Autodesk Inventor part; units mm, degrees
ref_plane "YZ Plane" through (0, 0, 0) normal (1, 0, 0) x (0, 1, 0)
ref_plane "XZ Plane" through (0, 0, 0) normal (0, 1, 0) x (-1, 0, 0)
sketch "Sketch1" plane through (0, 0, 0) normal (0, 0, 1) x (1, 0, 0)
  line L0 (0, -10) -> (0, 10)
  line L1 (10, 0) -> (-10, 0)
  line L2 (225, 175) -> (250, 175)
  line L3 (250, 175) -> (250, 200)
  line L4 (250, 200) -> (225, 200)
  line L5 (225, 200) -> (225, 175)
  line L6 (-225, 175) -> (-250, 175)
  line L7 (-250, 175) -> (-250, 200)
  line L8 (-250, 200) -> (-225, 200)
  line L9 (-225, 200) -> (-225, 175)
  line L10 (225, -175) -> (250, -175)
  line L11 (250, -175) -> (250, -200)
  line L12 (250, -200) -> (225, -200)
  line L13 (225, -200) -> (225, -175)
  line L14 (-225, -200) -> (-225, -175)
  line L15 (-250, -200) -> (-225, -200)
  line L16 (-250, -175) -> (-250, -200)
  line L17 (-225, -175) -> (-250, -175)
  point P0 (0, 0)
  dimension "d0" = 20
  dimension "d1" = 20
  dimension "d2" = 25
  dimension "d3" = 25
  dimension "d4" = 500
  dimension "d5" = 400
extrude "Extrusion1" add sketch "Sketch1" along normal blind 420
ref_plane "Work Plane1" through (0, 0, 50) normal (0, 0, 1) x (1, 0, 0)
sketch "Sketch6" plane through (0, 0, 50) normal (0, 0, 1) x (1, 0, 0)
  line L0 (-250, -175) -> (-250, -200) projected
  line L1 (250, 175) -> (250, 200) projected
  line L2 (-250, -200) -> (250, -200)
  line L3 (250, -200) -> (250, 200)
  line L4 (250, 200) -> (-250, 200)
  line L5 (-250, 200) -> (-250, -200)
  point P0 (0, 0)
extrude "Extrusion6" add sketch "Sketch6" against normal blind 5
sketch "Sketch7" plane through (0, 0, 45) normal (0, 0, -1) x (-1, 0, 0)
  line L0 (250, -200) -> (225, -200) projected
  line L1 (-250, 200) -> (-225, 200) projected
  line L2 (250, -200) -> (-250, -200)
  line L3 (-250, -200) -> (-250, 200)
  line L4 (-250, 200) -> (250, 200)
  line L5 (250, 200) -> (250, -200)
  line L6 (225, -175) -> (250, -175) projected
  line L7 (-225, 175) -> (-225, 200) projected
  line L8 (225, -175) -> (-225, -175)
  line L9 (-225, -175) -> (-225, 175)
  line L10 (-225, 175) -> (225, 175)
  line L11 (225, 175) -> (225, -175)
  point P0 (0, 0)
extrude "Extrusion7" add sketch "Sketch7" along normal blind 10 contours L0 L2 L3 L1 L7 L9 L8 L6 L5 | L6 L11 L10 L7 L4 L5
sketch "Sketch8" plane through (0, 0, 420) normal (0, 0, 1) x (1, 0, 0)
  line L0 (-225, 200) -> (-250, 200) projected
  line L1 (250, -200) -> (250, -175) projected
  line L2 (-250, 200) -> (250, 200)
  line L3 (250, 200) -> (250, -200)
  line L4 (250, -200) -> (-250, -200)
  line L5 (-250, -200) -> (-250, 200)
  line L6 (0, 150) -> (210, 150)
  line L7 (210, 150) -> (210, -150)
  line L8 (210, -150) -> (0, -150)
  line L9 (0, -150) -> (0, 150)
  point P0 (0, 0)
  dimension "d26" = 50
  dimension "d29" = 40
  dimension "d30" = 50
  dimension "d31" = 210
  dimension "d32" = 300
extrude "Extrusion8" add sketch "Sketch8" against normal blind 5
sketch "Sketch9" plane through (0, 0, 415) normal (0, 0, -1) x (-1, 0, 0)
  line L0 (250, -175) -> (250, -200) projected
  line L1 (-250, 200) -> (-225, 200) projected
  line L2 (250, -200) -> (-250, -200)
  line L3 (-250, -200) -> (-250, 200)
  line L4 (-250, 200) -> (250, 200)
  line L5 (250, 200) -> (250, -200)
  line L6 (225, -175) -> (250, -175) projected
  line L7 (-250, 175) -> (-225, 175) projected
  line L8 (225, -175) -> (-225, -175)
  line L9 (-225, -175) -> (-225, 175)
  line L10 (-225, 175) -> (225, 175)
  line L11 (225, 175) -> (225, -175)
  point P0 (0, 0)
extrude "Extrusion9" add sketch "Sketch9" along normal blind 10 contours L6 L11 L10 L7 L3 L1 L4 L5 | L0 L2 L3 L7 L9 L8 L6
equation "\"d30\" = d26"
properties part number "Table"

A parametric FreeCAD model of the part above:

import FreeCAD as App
import Part
import Sketcher

V = App.Vector
Q = App.Units.Quantity

doc = App.newDocument("Part")
body = doc.addObject("PartDesign::Body", "Body")
body.AllowCompound = True

# Sketch on XY plane
sketch1 = body.newObject("Sketcher::SketchObject", "Sketch")
sketch1.AttachmentSupport = (doc.getObject("XY_Plane"), [""])
sketch1.MapMode = "FlatFace"
sketch1.addGeometry(Part.LineSegment(V(225, 200, 0), V(225, 175, 0)), False)
sketch1.addGeometry(Part.LineSegment(V(225, 175, 0), V(250, 175, 0)), False)
sketch1.addGeometry(Part.LineSegment(V(250, 175, 0), V(250, 200, 0)), False)
sketch1.addGeometry(Part.LineSegment(V(250, 200, 0), V(225, 200, 0)), False)
sketch1.addGeometry(Part.LineSegment(V(-250, 175, 0), V(-225, 175, 0)), False)
sketch1.addGeometry(Part.LineSegment(V(-225, 175, 0), V(-225, 200, 0)), False)
sketch1.addGeometry(Part.LineSegment(V(-225, 200, 0), V(-250, 200, 0)), False)
sketch1.addGeometry(Part.LineSegment(V(-250, 200, 0), V(-250, 175, 0)), False)
sketch1.addGeometry(Part.LineSegment(V(250, -175, 0), V(225, -175, 0)), False)
sketch1.addGeometry(Part.LineSegment(V(225, -175, 0), V(225, -200, 0)), False)
sketch1.addGeometry(Part.LineSegment(V(225, -200, 0), V(250, -200, 0)), False)
sketch1.addGeometry(Part.LineSegment(V(250, -200, 0), V(250, -175, 0)), False)
sketch1.addGeometry(Part.LineSegment(V(-250, -200, 0), V(-225, -200, 0)), False)
sketch1.addGeometry(Part.LineSegment(V(-225, -200, 0), V(-225, -175, 0)), False)
sketch1.addGeometry(Part.LineSegment(V(-225, -175, 0), V(-250, -175, 0)), False)
sketch1.addGeometry(Part.LineSegment(V(-250, -175, 0), V(-250, -200, 0)), False)
sketch1.addConstraint(Sketcher.Constraint("Coincident", 0, 2, 1, 1))
sketch1.addConstraint(Sketcher.Constraint("Coincident", 1, 2, 2, 1))
sketch1.addConstraint(Sketcher.Constraint("Coincident", 2, 2, 3, 1))
sketch1.addConstraint(Sketcher.Constraint("Coincident", 3, 2, 0, 1))
sketch1.addConstraint(Sketcher.Constraint("Coincident", 4, 2, 5, 1))
sketch1.addConstraint(Sketcher.Constraint("Coincident", 5, 2, 6, 1))
sketch1.addConstraint(Sketcher.Constraint("Coincident", 6, 2, 7, 1))
sketch1.addConstraint(Sketcher.Constraint("Coincident", 7, 2, 4, 1))
sketch1.addConstraint(Sketcher.Constraint("Coincident", 8, 2, 9, 1))
sketch1.addConstraint(Sketcher.Constraint("Coincident", 9, 2, 10, 1))
sketch1.addConstraint(Sketcher.Constraint("Coincident", 10, 2, 11, 1))
sketch1.addConstraint(Sketcher.Constraint("Coincident", 11, 2, 8, 1))
sketch1.addConstraint(Sketcher.Constraint("Coincident", 12, 2, 13, 1))
sketch1.addConstraint(Sketcher.Constraint("Coincident", 13, 2, 14, 1))
sketch1.addConstraint(Sketcher.Constraint("Coincident", 14, 2, 15, 1))
sketch1.addConstraint(Sketcher.Constraint("Coincident", 15, 2, 12, 1))
sketch1.addConstraint(Sketcher.Constraint("Vertical", 0))
sketch1.addConstraint(Sketcher.Constraint("Horizontal", 1))
sketch1.addConstraint(Sketcher.Constraint("Vertical", 2))
sketch1.addConstraint(Sketcher.Constraint("Horizontal", 3))
sketch1.addConstraint(Sketcher.Constraint("Horizontal", 4))
sketch1.addConstraint(Sketcher.Constraint("Vertical", 5))
sketch1.addConstraint(Sketcher.Constraint("Horizontal", 6))
sketch1.addConstraint(Sketcher.Constraint("Vertical", 7))
sketch1.addConstraint(Sketcher.Constraint("Horizontal", 8))
sketch1.addConstraint(Sketcher.Constraint("Vertical", 9))
sketch1.addConstraint(Sketcher.Constraint("Horizontal", 10))
sketch1.addConstraint(Sketcher.Constraint("Vertical", 11))
sketch1.addConstraint(Sketcher.Constraint("Horizontal", 12))
sketch1.addConstraint(Sketcher.Constraint("Vertical", 13))
sketch1.addConstraint(Sketcher.Constraint("Horizontal", 14))
sketch1.addConstraint(Sketcher.Constraint("Vertical", 15))
sketch1.addConstraint(Sketcher.Constraint("Symmetric", 4, 2, 8, 2, -1, 1))
sketch1.addConstraint(Sketcher.Constraint("Symmetric", 6, 2, 10, 2, -1, 1))
sketch1.addConstraint(Sketcher.Constraint("Symmetric", 3, 2, 12, 2, -1, 1))
sketch1.addConstraint(Sketcher.Constraint("Symmetric", 1, 2, 14, 2, -1, 1))
sketch1.addConstraint(Sketcher.Constraint("Symmetric", 0, 2, 4, 2, -2))
sketch1.addConstraint(Sketcher.Constraint("Symmetric", 2, 2, 6, 2, -2))
sketch1.addConstraint(Sketcher.Constraint("Equal", 14, 0))
sketch1.addConstraint(Sketcher.Constraint("DistanceX", 1, 1, 1, 2, Q("25 mm")))
sketch1.addConstraint(Sketcher.Constraint("DistanceX", 6, 2, 2, 2, Q("500 mm")))
sketch1.addConstraint(Sketcher.Constraint("DistanceY", 9, 2, 3, 2, Q("400 mm")))
pad1 = body.newObject("PartDesign::Pad", "Pad")
pad1.Profile = sketch1
pad1.Length = 420

# Sketch on XY plane
sketch2 = body.newObject("Sketcher::SketchObject", "Sketch001")
sketch2.AttachmentSupport = (doc.getObject("XY_Plane"), [""])
sketch2.MapMode = "FlatFace"
sketch2.AttachmentOffset = App.Placement(V(0, 0, 50), App.Rotation())
sketch2.addGeometry(Part.LineSegment(V(-250, 200, 0), V(-250, -200, 0)), False)
sketch2.addGeometry(Part.LineSegment(V(-250, -200, 0), V(250, -200, 0)), False)
sketch2.addGeometry(Part.LineSegment(V(250, -200, 0), V(250, 200, 0)), False)
sketch2.addGeometry(Part.LineSegment(V(250, 200, 0), V(-250, 200, 0)), False)
sketch2.addConstraint(Sketcher.Constraint("Coincident", 0, 2, 1, 1))
sketch2.addConstraint(Sketcher.Constraint("Coincident", 1, 2, 2, 1))
sketch2.addConstraint(Sketcher.Constraint("Coincident", 2, 2, 3, 1))
sketch2.addConstraint(Sketcher.Constraint("Coincident", 3, 2, 0, 1))
sketch2.addConstraint(Sketcher.Constraint("Vertical", 0))
sketch2.addConstraint(Sketcher.Constraint("Horizontal", 1))
sketch2.addConstraint(Sketcher.Constraint("Vertical", 2))
sketch2.addConstraint(Sketcher.Constraint("Horizontal", 3))
sketch2.addConstraint(Sketcher.Constraint("Symmetric", 0, 2, 2, 2, -1, 1))
sketch2.addConstraint(Sketcher.Constraint("DistanceX", 1, 1, 1, 2, Q("500 mm")))
sketch2.addConstraint(Sketcher.Constraint("DistanceY", 0, 2, 0, 1, Q("400 mm")))
pad2 = body.newObject("PartDesign::Pad", "Pad001")
pad2.Profile = sketch2
pad2.Length = 5
pad2.Reversed = True

# Sketch on XY plane
sketch3 = body.newObject("Sketcher::SketchObject", "Sketch002")
sketch3.AttachmentSupport = (doc.getObject("XY_Plane"), [""])
sketch3.MapMode = "FlatFace"
sketch3.AttachmentOffset = App.Placement(V(0, 0, 45), App.Rotation())
sketch3.addGeometry(Part.LineSegment(V(-250, -200, 0), V(-250, 200, 0)), False)
sketch3.addGeometry(Part.LineSegment(V(-250, 200, 0), V(250, 200, 0)), False)
sketch3.addGeometry(Part.LineSegment(V(250, 200, 0), V(250, -200, 0)), False)
sketch3.addGeometry(Part.LineSegment(V(250, -200, 0), V(-250, -200, 0)), False)
sketch3.addGeometry(Part.LineSegment(V(225, -175, 0), V(225, 175, 0)), False)
sketch3.addGeometry(Part.LineSegment(V(225, 175, 0), V(-225, 175, 0)), False)
sketch3.addGeometry(Part.LineSegment(V(-225, 175, 0), V(-225, -175, 0)), False)
sketch3.addGeometry(Part.LineSegment(V(-225, -175, 0), V(225, -175, 0)), False)
sketch3.addConstraint(Sketcher.Constraint("Coincident", 0, 2, 1, 1))
sketch3.addConstraint(Sketcher.Constraint("Coincident", 1, 2, 2, 1))
sketch3.addConstraint(Sketcher.Constraint("Coincident", 2, 2, 3, 1))
sketch3.addConstraint(Sketcher.Constraint("Coincident", 3, 2, 0, 1))
sketch3.addConstraint(Sketcher.Constraint("Coincident", 4, 2, 5, 1))
sketch3.addConstraint(Sketcher.Constraint("Coincident", 5, 2, 6, 1))
sketch3.addConstraint(Sketcher.Constraint("Coincident", 6, 2, 7, 1))
sketch3.addConstraint(Sketcher.Constraint("Coincident", 7, 2, 4, 1))
sketch3.addConstraint(Sketcher.Constraint("Vertical", 0))
sketch3.addConstraint(Sketcher.Constraint("Horizontal", 1))
sketch3.addConstraint(Sketcher.Constraint("Vertical", 2))
sketch3.addConstraint(Sketcher.Constraint("Horizontal", 3))
sketch3.addConstraint(Sketcher.Constraint("Vertical", 4))
sketch3.addConstraint(Sketcher.Constraint("Horizontal", 5))
sketch3.addConstraint(Sketcher.Constraint("Vertical", 6))
sketch3.addConstraint(Sketcher.Constraint("Horizontal", 7))
sketch3.addConstraint(Sketcher.Constraint("Symmetric", 0, 2, 2, 2, -1, 1))
sketch3.addConstraint(Sketcher.Constraint("Symmetric", 4, 2, 6, 2, -1, 1))
sketch3.addConstraint(Sketcher.Constraint("DistanceX", 1, 1, 1, 2, Q("500 mm")))
sketch3.addConstraint(Sketcher.Constraint("DistanceX", 5, 2, 5, 1, Q("450 mm")))
sketch3.addConstraint(Sketcher.Constraint("DistanceY", 0, 1, 0, 2, Q("400 mm")))
sketch3.addConstraint(Sketcher.Constraint("DistanceY", 4, 1, 4, 2, Q("350 mm")))
pad3 = body.newObject("PartDesign::Pad", "Pad002")
pad3.Profile = sketch3
pad3.Length = 10
pad3.Reversed = True

# Sketch on XY plane
sketch4 = body.newObject("Sketcher::SketchObject", "Sketch003")
sketch4.AttachmentSupport = (doc.getObject("XY_Plane"), [""])
sketch4.MapMode = "FlatFace"
sketch4.AttachmentOffset = App.Placement(V(0, 0, 420), App.Rotation())
sketch4.addGeometry(Part.LineSegment(V(250, 200, 0), V(-250, 200, 0)), False)
sketch4.addGeometry(Part.LineSegment(V(-250, 200, 0), V(-250, -200, 0)), False)
sketch4.addGeometry(Part.LineSegment(V(-250, -200, 0), V(250, -200, 0)), False)
sketch4.addGeometry(Part.LineSegment(V(250, -200, 0), V(250, 200, 0)), False)
sketch4.addGeometry(Part.LineSegment(V(0, -150, 0), V(0, 150, 0)), False)
sketch4.addGeometry(Part.LineSegment(V(0, 150, 0), V(210, 150, 0)), False)
sketch4.addGeometry(Part.LineSegment(V(210, 150, 0), V(210, -150, 0)), False)
sketch4.addGeometry(Part.LineSegment(V(210, -150, 0), V(0, -150, 0)), False)
sketch4.addConstraint(Sketcher.Constraint("Coincident", 0, 2, 1, 1))
sketch4.addConstraint(Sketcher.Constraint("Coincident", 1, 2, 2, 1))
sketch4.addConstraint(Sketcher.Constraint("Coincident", 2, 2, 3, 1))
sketch4.addConstraint(Sketcher.Constraint("Coincident", 3, 2, 0, 1))
sketch4.addConstraint(Sketcher.Constraint("Coincident", 4, 2, 5, 1))
sketch4.addConstraint(Sketcher.Constraint("Coincident", 5, 2, 6, 1))
sketch4.addConstraint(Sketcher.Constraint("Coincident", 6, 2, 7, 1))
sketch4.addConstraint(Sketcher.Constraint("Coincident", 7, 2, 4, 1))
sketch4.addConstraint(Sketcher.Constraint("Horizontal", 0))
sketch4.addConstraint(Sketcher.Constraint("Vertical", 1))
sketch4.addConstraint(Sketcher.Constraint("Horizontal", 2))
sketch4.addConstraint(Sketcher.Constraint("Vertical", 3))
sketch4.addConstraint(Sketcher.Constraint("Vertical", 4))
sketch4.addConstraint(Sketcher.Constraint("Horizontal", 5))
sketch4.addConstraint(Sketcher.Constraint("Vertical", 6))
sketch4.addConstraint(Sketcher.Constraint("Horizontal", 7))
sketch4.addConstraint(Sketcher.Constraint("Symmetric", 0, 2, 2, 2, -1, 1))
sketch4.addConstraint(Sketcher.Constraint("Symmetric", 4, 2, 7, 2, -1, 1))
sketch4.addConstraint(Sketcher.Constraint("DistanceX", 5, 1, 5, 2, Q("210 mm")))
sketch4.addConstraint(Sketcher.Constraint("DistanceY", 4, 1, 4, 2, Q("300 mm")))
sketch4.addConstraint(Sketcher.Constraint("DistanceY", 4, 2, 0, 2, Q("50 mm")))
sketch4.addConstraint(Sketcher.Constraint("DistanceX", 5, 2, 3, 2, Q("40 mm")))
pad4 = body.newObject("PartDesign::Pad", "Pad003")
pad4.Profile = sketch4
pad4.Length = 5
pad4.Reversed = True

# Sketch on XY plane
sketch5 = body.newObject("Sketcher::SketchObject", "Sketch004")
sketch5.AttachmentSupport = (doc.getObject("XY_Plane"), [""])
sketch5.MapMode = "FlatFace"
sketch5.AttachmentOffset = App.Placement(V(0, 0, 415), App.Rotation())
sketch5.addGeometry(Part.LineSegment(V(250, 200, 0), V(250, -200, 0)), False)
sketch5.addGeometry(Part.LineSegment(V(250, -200, 0), V(-250, -200, 0)), False)
sketch5.addGeometry(Part.LineSegment(V(-250, -200, 0), V(-250, 200, 0)), False)
sketch5.addGeometry(Part.LineSegment(V(-250, 200, 0), V(250, 200, 0)), False)
sketch5.addGeometry(Part.LineSegment(V(-225, 175, 0), V(-225, -175, 0)), False)
sketch5.addGeometry(Part.LineSegment(V(-225, -175, 0), V(225, -175, 0)), False)
sketch5.addGeometry(Part.LineSegment(V(225, -175, 0), V(225, 175, 0)), False)
sketch5.addGeometry(Part.LineSegment(V(225, 175, 0), V(-225, 175, 0)), False)
sketch5.addConstraint(Sketcher.Constraint("Coincident", 0, 2, 1, 1))
sketch5.addConstraint(Sketcher.Constraint("Coincident", 1, 2, 2, 1))
sketch5.addConstraint(Sketcher.Constraint("Coincident", 2, 2, 3, 1))
sketch5.addConstraint(Sketcher.Constraint("Coincident", 3, 2, 0, 1))
sketch5.addConstraint(Sketcher.Constraint("Coincident", 4, 2, 5, 1))
sketch5.addConstraint(Sketcher.Constraint("Coincident", 5, 2, 6, 1))
sketch5.addConstraint(Sketcher.Constraint("Coincident", 6, 2, 7, 1))
sketch5.addConstraint(Sketcher.Constraint("Coincident", 7, 2, 4, 1))
sketch5.addConstraint(Sketcher.Constraint("Vertical", 0))
sketch5.addConstraint(Sketcher.Constraint("Horizontal", 1))
sketch5.addConstraint(Sketcher.Constraint("Vertical", 2))
sketch5.addConstraint(Sketcher.Constraint("Horizontal", 3))
sketch5.addConstraint(Sketcher.Constraint("Vertical", 4))
sketch5.addConstraint(Sketcher.Constraint("Horizontal", 5))
sketch5.addConstraint(Sketcher.Constraint("Vertical", 6))
sketch5.addConstraint(Sketcher.Constraint("Horizontal", 7))
sketch5.addConstraint(Sketcher.Constraint("Symmetric", 0, 2, 2, 2, -1, 1))
sketch5.addConstraint(Sketcher.Constraint("Symmetric", 4, 2, 6, 2, -1, 1))
sketch5.addConstraint(Sketcher.Constraint("DistanceX", 1, 2, 1, 1, Q("500 mm")))
sketch5.addConstraint(Sketcher.Constraint("DistanceX", 5, 1, 5, 2, Q("450 mm")))
sketch5.addConstraint(Sketcher.Constraint("DistanceY", 0, 2, 0, 1, Q("400 mm")))
sketch5.addConstraint(Sketcher.Constraint("DistanceY", 4, 2, 4, 1, Q("350 mm")))
pad5 = body.newObject("PartDesign::Pad", "Pad004")
pad5.Profile = sketch5
pad5.Length = 10
pad5.Reversed = True

doc.recompute()
